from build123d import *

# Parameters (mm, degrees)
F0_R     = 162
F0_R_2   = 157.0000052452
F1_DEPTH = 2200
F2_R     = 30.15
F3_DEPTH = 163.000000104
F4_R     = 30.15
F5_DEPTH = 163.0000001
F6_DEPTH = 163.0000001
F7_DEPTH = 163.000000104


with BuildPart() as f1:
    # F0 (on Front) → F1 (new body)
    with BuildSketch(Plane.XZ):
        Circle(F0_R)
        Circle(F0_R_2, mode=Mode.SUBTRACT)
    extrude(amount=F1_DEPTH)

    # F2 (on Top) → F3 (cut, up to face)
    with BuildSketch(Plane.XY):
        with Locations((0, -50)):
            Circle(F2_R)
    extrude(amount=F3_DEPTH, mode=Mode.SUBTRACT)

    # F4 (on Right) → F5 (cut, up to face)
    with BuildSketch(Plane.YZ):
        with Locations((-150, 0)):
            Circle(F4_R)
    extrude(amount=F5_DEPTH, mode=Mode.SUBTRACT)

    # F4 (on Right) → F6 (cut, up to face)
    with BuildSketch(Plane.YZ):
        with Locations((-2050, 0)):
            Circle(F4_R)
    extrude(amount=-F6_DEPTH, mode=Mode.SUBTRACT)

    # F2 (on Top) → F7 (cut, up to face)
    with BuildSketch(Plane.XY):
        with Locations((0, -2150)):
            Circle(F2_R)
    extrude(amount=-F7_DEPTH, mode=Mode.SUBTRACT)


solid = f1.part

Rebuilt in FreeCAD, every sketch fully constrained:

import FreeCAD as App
import Part
import Sketcher
Q = App.Units.Quantity

doc = App.newDocument("Part")
params = doc.addObject("Spreadsheet::Sheet", "Params")
for row, (alias, value) in enumerate([
    ("sketch1_diameter", "324 mm"),
    ("pad1_length", "2200 mm"),
    ("sketch2_diameter", "60.3 mm"),
    ("pocket1_length", "163 mm"),
    ("sketch3_diameter", "60.3 mm"),
    ("pocket2_length", "163 mm"),
    ("sketch4_diameter", "60.3 mm"),
    ("pocket3_length", "163 mm"),
    ("sketch5_diameter", "60.3 mm"),
    ("pocket4_length", "163 mm"),
], start=1):
    params.set(f"A{row}", alias)
    params.set(f"B{row}", "=" + value)
    params.setAlias(f"B{row}", alias)

body = doc.addObject("PartDesign::Body", "Body")

# Sketch on XZ plane
sketch1 = doc.addObject("Sketcher::SketchObject", "Sketch")
body.addObject(sketch1)
sketch1.AttachmentSupport = (doc.XZ_Plane, [""])
sketch1.MapMode = "FlatFace"
sketch1.addGeometry(Part.Circle(App.Vector(0, 0, 0), App.Vector(0, 0, 1), 162), False)
sketch1.addGeometry(Part.Circle(App.Vector(0, 0, 0), App.Vector(0, 0, 1), 157), False)
sketch1.addConstraint(Sketcher.Constraint("Coincident", 0, 3, -1, 1))
sketch1.addConstraint(Sketcher.Constraint("Coincident", 1, 3, -1, 1))
sketch1.addConstraint(Sketcher.Constraint("Diameter", 0, Q("324 mm")))
sketch1.addConstraint(Sketcher.Constraint("Diameter", 1, Q("314.00001 mm")))
sketch1.setExpression("Constraints[2]", "Params.sketch1_diameter")
pad1 = doc.addObject("PartDesign::Pad", "Pad")
body.addObject(pad1)
pad1.Profile = sketch1
pad1.setExpression("Length", "Params.pad1_length")

# Sketch on XY plane
sketch2 = doc.addObject("Sketcher::SketchObject", "Sketch001")
body.addObject(sketch2)
sketch2.AttachmentSupport = (doc.XY_Plane, [""])
sketch2.MapMode = "FlatFace"
sketch2.addGeometry(Part.Circle(App.Vector(0, -50, 0), App.Vector(0, 0, 1), 30), False)
sketch2.addConstraint(Sketcher.Constraint("PointOnObject", 0, 3, -2))
sketch2.addConstraint(Sketcher.Constraint("Diameter", 0, Q("60.3 mm")))
sketch2.addConstraint(Sketcher.Constraint("DistanceY", 0, 3, -1, 1, Q("50 mm")))
sketch2.setExpression("Constraints[1]", "Params.sketch2_diameter")
pocket1 = doc.addObject("PartDesign::Pocket", "Pocket")
body.addObject(pocket1)
pocket1.Profile = sketch2
pocket1.setExpression("Length", "Params.pocket1_length")
pocket1.Reversed = True

# Sketch on YZ plane
sketch3 = doc.addObject("Sketcher::SketchObject", "Sketch002")
body.addObject(sketch3)
sketch3.AttachmentSupport = (doc.YZ_Plane, [""])
sketch3.MapMode = "FlatFace"
sketch3.addGeometry(Part.Circle(App.Vector(-150, 0, 0), App.Vector(0, 0, 1), 30), False)
sketch3.addConstraint(Sketcher.Constraint("PointOnObject", 0, 3, -1))
sketch3.addConstraint(Sketcher.Constraint("Diameter", 0, Q("60.3 mm")))
sketch3.addConstraint(Sketcher.Constraint("DistanceX", 0, 3, -1, 1, Q("150 mm")))
sketch3.setExpression("Constraints[1]", "Params.sketch3_diameter")
pocket2 = doc.addObject("PartDesign::Pocket", "Pocket001")
body.addObject(pocket2)
pocket2.Profile = sketch3
pocket2.setExpression("Length", "Params.pocket2_length")
pocket2.Reversed = True

# Sketch on YZ plane
sketch4 = doc.addObject("Sketcher::SketchObject", "Sketch003")
body.addObject(sketch4)
sketch4.AttachmentSupport = (doc.YZ_Plane, [""])
sketch4.MapMode = "FlatFace"
sketch4.addGeometry(Part.Circle(App.Vector(-2050, 0, 0), App.Vector(0, 0, 1), 30), False)
sketch4.addConstraint(Sketcher.Constraint("PointOnObject", 0, 3, -1))
sketch4.addConstraint(Sketcher.Constraint("Diameter", 0, Q("60.3 mm")))
sketch4.addConstraint(Sketcher.Constraint("DistanceX", 0, 3, -1, 1, Q("2050 mm")))
sketch4.setExpression("Constraints[1]", "Params.sketch4_diameter")
pocket3 = doc.addObject("PartDesign::Pocket", "Pocket002")
body.addObject(pocket3)
pocket3.Profile = sketch4
pocket3.setExpression("Length", "Params.pocket3_length")

# Sketch on XY plane
sketch5 = doc.addObject("Sketcher::SketchObject", "Sketch004")
body.addObject(sketch5)
sketch5.AttachmentSupport = (doc.XY_Plane, [""])
sketch5.MapMode = "FlatFace"
sketch5.addGeometry(Part.Circle(App.Vector(0, -2150, 0), App.Vector(0, 0, 1), 30), False)
sketch5.addConstraint(Sketcher.Constraint("PointOnObject", 0, 3, -2))
sketch5.addConstraint(Sketcher.Constraint("Diameter", 0, Q("60.3 mm")))
sketch5.addConstraint(Sketcher.Constraint("DistanceY", 0, 3, -1, 1, Q("2150 mm")))
sketch5.setExpression("Constraints[1]", "Params.sketch5_diameter")
pocket4 = doc.addObject("PartDesign::Pocket", "Pocket003")
body.addObject(pocket4)
pocket4.Profile = sketch5
pocket4.setExpression("Length", "Params.pocket4_length")

doc.recompute()
